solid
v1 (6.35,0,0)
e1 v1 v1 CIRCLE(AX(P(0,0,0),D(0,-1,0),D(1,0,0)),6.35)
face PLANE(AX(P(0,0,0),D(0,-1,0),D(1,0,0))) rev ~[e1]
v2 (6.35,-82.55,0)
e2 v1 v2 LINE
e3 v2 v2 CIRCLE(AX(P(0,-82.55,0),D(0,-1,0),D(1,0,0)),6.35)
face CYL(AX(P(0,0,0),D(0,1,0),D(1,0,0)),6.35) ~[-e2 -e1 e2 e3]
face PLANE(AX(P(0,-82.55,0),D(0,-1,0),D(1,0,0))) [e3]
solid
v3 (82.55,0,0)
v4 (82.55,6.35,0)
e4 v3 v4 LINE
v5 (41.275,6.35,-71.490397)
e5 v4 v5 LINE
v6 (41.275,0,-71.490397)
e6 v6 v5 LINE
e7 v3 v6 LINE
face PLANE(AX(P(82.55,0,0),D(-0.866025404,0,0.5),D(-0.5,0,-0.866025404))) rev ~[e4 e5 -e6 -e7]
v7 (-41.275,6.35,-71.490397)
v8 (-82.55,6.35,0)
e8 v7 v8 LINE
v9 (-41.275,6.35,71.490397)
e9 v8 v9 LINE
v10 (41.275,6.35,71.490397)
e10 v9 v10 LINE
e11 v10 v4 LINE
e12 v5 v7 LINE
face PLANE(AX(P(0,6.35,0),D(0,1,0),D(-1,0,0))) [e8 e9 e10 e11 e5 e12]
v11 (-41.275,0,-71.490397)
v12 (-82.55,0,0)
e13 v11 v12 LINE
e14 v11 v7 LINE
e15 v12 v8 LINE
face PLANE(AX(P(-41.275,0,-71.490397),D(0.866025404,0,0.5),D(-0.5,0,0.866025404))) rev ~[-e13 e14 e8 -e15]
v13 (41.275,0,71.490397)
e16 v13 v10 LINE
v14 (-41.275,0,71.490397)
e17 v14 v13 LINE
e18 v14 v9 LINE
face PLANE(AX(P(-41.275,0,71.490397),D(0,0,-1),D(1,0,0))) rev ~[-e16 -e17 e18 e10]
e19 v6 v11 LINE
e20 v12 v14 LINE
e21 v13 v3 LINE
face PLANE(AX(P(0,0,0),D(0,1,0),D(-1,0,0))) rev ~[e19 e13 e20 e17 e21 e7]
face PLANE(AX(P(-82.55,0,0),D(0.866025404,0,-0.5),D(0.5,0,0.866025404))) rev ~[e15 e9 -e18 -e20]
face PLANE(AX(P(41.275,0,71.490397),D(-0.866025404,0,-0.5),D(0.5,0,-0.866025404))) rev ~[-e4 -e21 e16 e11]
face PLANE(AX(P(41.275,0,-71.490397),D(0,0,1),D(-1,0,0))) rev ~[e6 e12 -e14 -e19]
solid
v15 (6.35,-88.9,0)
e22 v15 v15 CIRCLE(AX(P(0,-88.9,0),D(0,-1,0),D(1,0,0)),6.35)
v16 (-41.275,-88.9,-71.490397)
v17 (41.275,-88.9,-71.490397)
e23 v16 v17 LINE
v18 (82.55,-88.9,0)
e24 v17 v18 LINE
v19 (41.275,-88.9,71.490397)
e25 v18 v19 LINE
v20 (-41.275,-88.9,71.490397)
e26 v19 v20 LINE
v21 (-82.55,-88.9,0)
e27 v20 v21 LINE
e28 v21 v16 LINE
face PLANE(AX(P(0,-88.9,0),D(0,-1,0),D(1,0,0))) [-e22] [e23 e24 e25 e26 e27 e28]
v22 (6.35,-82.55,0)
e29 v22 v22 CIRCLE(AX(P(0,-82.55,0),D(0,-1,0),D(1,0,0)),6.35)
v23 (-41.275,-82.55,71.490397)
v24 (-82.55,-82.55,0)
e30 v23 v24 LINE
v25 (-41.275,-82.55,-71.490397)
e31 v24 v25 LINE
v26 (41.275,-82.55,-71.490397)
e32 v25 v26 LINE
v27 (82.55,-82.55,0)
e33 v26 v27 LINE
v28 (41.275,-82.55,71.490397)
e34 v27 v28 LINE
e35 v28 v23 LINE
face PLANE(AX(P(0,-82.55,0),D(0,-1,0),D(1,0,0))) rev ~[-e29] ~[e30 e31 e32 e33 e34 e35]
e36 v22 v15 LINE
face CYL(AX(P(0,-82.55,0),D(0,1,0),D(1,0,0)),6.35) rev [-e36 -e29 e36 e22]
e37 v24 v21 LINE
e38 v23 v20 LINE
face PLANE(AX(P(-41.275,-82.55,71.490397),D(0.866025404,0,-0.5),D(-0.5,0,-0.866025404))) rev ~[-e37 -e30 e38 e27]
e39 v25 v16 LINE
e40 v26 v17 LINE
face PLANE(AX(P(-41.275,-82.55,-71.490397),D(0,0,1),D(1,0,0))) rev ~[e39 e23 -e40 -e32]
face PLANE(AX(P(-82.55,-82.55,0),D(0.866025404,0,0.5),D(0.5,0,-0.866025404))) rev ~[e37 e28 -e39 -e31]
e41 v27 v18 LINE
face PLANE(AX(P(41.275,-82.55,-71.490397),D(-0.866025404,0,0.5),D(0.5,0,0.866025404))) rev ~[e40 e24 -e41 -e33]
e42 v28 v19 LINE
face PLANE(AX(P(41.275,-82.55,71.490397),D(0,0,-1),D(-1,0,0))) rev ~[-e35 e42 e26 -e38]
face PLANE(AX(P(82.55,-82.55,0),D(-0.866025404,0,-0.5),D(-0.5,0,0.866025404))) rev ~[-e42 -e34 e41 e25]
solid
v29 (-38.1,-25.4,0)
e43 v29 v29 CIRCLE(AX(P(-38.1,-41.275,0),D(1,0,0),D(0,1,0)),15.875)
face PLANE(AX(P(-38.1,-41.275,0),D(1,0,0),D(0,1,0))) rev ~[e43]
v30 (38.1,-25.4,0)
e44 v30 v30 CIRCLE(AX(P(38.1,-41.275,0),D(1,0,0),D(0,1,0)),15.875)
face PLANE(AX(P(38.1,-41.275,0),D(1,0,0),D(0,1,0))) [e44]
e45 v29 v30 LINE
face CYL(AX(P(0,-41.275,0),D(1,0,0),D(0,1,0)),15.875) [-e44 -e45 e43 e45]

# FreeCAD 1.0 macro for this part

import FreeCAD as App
import Part
import Sketcher
Q = App.Units.Quantity

doc = App.newDocument("Part")
body = doc.addObject("PartDesign::Body", "Body")

# Sketch on XZ plane
sketch1 = doc.addObject("Sketcher::SketchObject", "Sketch")
body.addObject(sketch1)
sketch1.AttachmentSupport = (doc.XZ_Plane, [""])
sketch1.MapMode = "FlatFace"
sketch1.addGeometry(Part.Circle(App.Vector(0, 0, 0), App.Vector(0, 0, 1), 6), False)
sketch1.addConstraint([
    Sketcher.Constraint("Coincident", 0, 3, -1, 1),
    Sketcher.Constraint("Diameter", 0, Q("0.5 in")),
])
pad1 = doc.addObject("PartDesign::Pad", "Pad")
body.addObject(pad1)
pad1.Profile = sketch1
pad1.Length = Q("3.25 in")
body2 = doc.addObject("PartDesign::Body", "Body001")

# Sketch on XZ plane
sketch2 = doc.addObject("Sketcher::SketchObject", "Sketch001")
body2.addObject(sketch2)
sketch2.AttachmentSupport = (doc.getObject("XZ_Plane001"), [""])
sketch2.MapMode = "FlatFace"
sketch2.AttachmentOffset = App.Placement(App.Vector(0, 0, 3.25 * 25.4), App.Rotation())
sketch2.addGeometry([
    Part.LineSegment(App.Vector(41, 71, 0), App.Vector(-41, 71, 0)),  # 0
    Part.LineSegment(App.Vector(-41, 71, 0), App.Vector(-83, 0, 0)),  # 1
    Part.LineSegment(App.Vector(-83, 0, 0), App.Vector(-41, -71, 0)),  # 2
    Part.LineSegment(App.Vector(-41, -71, 0), App.Vector(41, -71, 0)),  # 3
    Part.LineSegment(App.Vector(41, -71, 0), App.Vector(83, 0, 0)),  # 4
    Part.LineSegment(App.Vector(83, 0, 0), App.Vector(41, 71, 0)),  # 5
    Part.Circle(App.Vector(0, 0, 0), App.Vector(0, 0, 1), 6),  # 6
], False)
sketch2.addConstraint([
    Sketcher.Constraint("Coincident", 0, 2, 1, 1),
    Sketcher.Constraint("Coincident", 1, 2, 2, 1),
    Sketcher.Constraint("Coincident", 2, 2, 3, 1),
    Sketcher.Constraint("Coincident", 3, 2, 4, 1),
    Sketcher.Constraint("Coincident", 4, 2, 5, 1),
    Sketcher.Constraint("Coincident", 5, 2, 0, 1),
    Sketcher.Constraint("Horizontal", 0),
    Sketcher.Constraint("Horizontal", 3),
    Sketcher.Constraint("Coincident", 6, 3, -1, 1),
    Sketcher.Constraint("Symmetric", 0, 2, 3, 2, -1, 1),
    Sketcher.Constraint("Symmetric", 1, 2, 4, 2, -1, 1),
    Sketcher.Constraint("PointOnObject", 1, 2, -1),
    Sketcher.Constraint("Parallel", 2, 5),
    Sketcher.Constraint("Vertical", 0, 2, 2, 2),
    Sketcher.Constraint("Diameter", 6, Q("0.5 in")),
    Sketcher.Constraint("Angle", 1, Q("-120 deg")),
    Sketcher.Constraint("DistanceX", 0, 2, 0, 1, Q("3.25 in")),
    Sketcher.Constraint("DistanceX", 1, 2, 4, 2, Q("6.5 in")),
])
pad2 = doc.addObject("PartDesign::Pad", "Pad001")
body2.addObject(pad2)
pad2.Profile = sketch2
pad2.Length = Q("0.25 in")
body3 = doc.addObject("PartDesign::Body", "Body002")

# Sketch on XZ plane
sketch3 = doc.addObject("Sketcher::SketchObject", "Sketch002")
body3.addObject(sketch3)
sketch3.AttachmentSupport = (doc.getObject("XZ_Plane002"), [""])
sketch3.MapMode = "FlatFace"
sketch3.addGeometry([
    Part.LineSegment(App.Vector(-83, 0, 0), App.Vector(-41, 71, 0)),  # 0
    Part.LineSegment(App.Vector(-41, 71, 0), App.Vector(41, 71, 0)),  # 1
    Part.LineSegment(App.Vector(41, 71, 0), App.Vector(83, 0, 0)),  # 2
    Part.LineSegment(App.Vector(83, 0, 0), App.Vector(41, -71, 0)),  # 3
    Part.LineSegment(App.Vector(41, -71, 0), App.Vector(-41, -71, 0)),  # 4
    Part.LineSegment(App.Vector(-41, -71, 0), App.Vector(-83, 0, 0)),  # 5
], False)
sketch3.addConstraint([
    Sketcher.Constraint("Coincident", 0, 2, 1, 1),
    Sketcher.Constraint("Coincident", 1, 2, 2, 1),
    Sketcher.Constraint("Coincident", 2, 2, 3, 1),
    Sketcher.Constraint("Coincident", 3, 2, 4, 1),
    Sketcher.Constraint("Coincident", 4, 2, 5, 1),
    Sketcher.Constraint("Coincident", 5, 2, 0, 1),
    Sketcher.Constraint("Horizontal", 1),
    Sketcher.Constraint("Horizontal", 4),
    Sketcher.Constraint("Symmetric", 0, 2, 3, 2, -1, 1),
    Sketcher.Constraint("Symmetric", 2, 2, 5, 2, -1, 1),
    Sketcher.Constraint("PointOnObject", 2, 2, -1),
    Sketcher.Constraint("Parallel", 2, 5),
    Sketcher.Constraint("Vertical", 1, 2, 3, 2),
    Sketcher.Constraint("Angle", 0, Q("60 deg")),
    Sketcher.Constraint("DistanceX", 1, 1, 1, 2, Q("3.25 in")),
    Sketcher.Constraint("DistanceX", 5, 2, 2, 2, Q("6.5 in")),
])
pad3 = doc.addObject("PartDesign::Pad", "Pad002")
body3.addObject(pad3)
pad3.Profile = sketch3
pad3.Length = Q("0.25 in")
pad3.Reversed = True
body4 = doc.addObject("PartDesign::Body", "Body003")

# Sketch on YZ plane
sketch4 = doc.addObject("Sketcher::SketchObject", "Sketch003")
body4.addObject(sketch4)
sketch4.AttachmentSupport = (doc.getObject("YZ_Plane003"), [""])
sketch4.MapMode = "FlatFace"
sketch4.addGeometry(Part.Circle(App.Vector(-41, 0, 0), App.Vector(0, 0, 1), 16), False)
sketch4.addConstraint([
    Sketcher.Constraint("PointOnObject", 0, 3, -1),
    Sketcher.Constraint("Diameter", 0, Q("1.25 in")),
    Sketcher.Constraint("DistanceX", 0, 3, -1, 1, Q("1.625 in")),
])
pad4 = doc.addObject("PartDesign::Pad", "Pad003")
body4.addObject(pad4)
pad4.Profile = sketch4
pad4.Length = Q("3 in")
pad4.Midplane = True

doc.recompute()
